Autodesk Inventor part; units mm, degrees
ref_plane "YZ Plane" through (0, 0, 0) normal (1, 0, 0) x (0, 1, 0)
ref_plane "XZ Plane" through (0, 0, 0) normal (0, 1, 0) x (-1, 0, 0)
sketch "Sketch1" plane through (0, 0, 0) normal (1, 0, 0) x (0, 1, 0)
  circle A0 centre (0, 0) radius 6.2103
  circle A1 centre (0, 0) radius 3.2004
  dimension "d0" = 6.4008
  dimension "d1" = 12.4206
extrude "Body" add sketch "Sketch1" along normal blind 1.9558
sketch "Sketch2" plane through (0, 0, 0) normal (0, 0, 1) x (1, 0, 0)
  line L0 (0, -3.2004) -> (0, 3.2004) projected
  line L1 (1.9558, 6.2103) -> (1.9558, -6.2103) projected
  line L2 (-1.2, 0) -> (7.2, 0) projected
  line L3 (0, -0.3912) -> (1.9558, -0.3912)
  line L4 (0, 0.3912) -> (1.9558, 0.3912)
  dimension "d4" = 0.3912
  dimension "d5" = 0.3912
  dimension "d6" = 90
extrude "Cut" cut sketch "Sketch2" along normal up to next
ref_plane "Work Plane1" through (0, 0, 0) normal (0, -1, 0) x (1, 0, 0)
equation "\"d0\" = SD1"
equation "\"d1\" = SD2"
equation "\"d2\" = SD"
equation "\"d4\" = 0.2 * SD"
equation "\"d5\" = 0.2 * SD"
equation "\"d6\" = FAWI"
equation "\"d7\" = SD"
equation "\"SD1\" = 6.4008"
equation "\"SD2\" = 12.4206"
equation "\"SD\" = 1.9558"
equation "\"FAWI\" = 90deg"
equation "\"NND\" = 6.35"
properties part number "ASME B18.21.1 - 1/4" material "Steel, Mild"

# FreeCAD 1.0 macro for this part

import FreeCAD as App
import Part
import Sketcher

V = App.Vector
Q = App.Units.Quantity

doc = App.newDocument("Part")
body = doc.addObject("PartDesign::Body", "Body")

# Sketch on YZ plane
sketch1 = body.newObject("Sketcher::SketchObject", "Sketch")
sketch1.AttachmentSupport = (doc.getObject("YZ_Plane"), [""])
sketch1.MapMode = "FlatFace"
sketch1.addGeometry(Part.Circle(V(0, 0, 0), V(0, 0, 1), 6.2103), False)
sketch1.addGeometry(Part.Circle(V(0, 0, 0), V(0, 0, 1), 3.2004), False)
sketch1.addConstraint(Sketcher.Constraint("Coincident", 0, 3, -1, 1))
sketch1.addConstraint(Sketcher.Constraint("Coincident", 1, 3, -1, 1))
sketch1.addConstraint(Sketcher.Constraint("Diameter", 0, Q("0.489 in")))
sketch1.addConstraint(Sketcher.Constraint("Diameter", 1, Q("0.252 in")))
pad1 = body.newObject("PartDesign::Pad", "Pad")
pad1.Profile = sketch1
pad1.Length = Q("0.077 in")

# Sketch on XY plane
sketch2 = body.newObject("Sketcher::SketchObject", "Sketch001")
sketch2.AttachmentSupport = (doc.getObject("XY_Plane"), [""])
sketch2.MapMode = "FlatFace"
sketch2.addGeometry(Part.LineSegment(V(0, -0.3912, 0), V(1.9558, -0.3912, 0)), False)
sketch2.addGeometry(Part.LineSegment(V(1.9558, -0.3912, 0), V(1.9558, 0.3912, 0)), False)
sketch2.addGeometry(Part.LineSegment(V(1.9558, 0.3912, 0), V(0, 0.3912, 0)), False)
sketch2.addGeometry(Part.LineSegment(V(0, 0.3912, 0), V(0, -0.3912, 0)), False)
sketch2.addConstraint(Sketcher.Constraint("Coincident", 0, 2, 1, 1))
sketch2.addConstraint(Sketcher.Constraint("Coincident", 1, 2, 2, 1))
sketch2.addConstraint(Sketcher.Constraint("Coincident", 2, 2, 3, 1))
sketch2.addConstraint(Sketcher.Constraint("Coincident", 3, 2, 0, 1))
sketch2.addConstraint(Sketcher.Constraint("Horizontal", 0))
sketch2.addConstraint(Sketcher.Constraint("Vertical", 1))
sketch2.addConstraint(Sketcher.Constraint("Horizontal", 2))
sketch2.addConstraint(Sketcher.Constraint("Vertical", 3))
sketch2.addConstraint(Sketcher.Constraint("Symmetric", 2, 2, 3, 2, -1, 1))
sketch2.addConstraint(Sketcher.Constraint("DistanceY", 0, 2, -1, 1, Q("0.0154 in")))
sketch2.addConstraint(Sketcher.Constraint("DistanceX", 0, 1, 0, 2, Q("0.077 in")))
pocket1 = body.newObject("PartDesign::Pocket", "Pocket")
pocket1.Profile = sketch2
pocket1.Length = 6.198
pocket1.Reversed = True

doc.recompute()
